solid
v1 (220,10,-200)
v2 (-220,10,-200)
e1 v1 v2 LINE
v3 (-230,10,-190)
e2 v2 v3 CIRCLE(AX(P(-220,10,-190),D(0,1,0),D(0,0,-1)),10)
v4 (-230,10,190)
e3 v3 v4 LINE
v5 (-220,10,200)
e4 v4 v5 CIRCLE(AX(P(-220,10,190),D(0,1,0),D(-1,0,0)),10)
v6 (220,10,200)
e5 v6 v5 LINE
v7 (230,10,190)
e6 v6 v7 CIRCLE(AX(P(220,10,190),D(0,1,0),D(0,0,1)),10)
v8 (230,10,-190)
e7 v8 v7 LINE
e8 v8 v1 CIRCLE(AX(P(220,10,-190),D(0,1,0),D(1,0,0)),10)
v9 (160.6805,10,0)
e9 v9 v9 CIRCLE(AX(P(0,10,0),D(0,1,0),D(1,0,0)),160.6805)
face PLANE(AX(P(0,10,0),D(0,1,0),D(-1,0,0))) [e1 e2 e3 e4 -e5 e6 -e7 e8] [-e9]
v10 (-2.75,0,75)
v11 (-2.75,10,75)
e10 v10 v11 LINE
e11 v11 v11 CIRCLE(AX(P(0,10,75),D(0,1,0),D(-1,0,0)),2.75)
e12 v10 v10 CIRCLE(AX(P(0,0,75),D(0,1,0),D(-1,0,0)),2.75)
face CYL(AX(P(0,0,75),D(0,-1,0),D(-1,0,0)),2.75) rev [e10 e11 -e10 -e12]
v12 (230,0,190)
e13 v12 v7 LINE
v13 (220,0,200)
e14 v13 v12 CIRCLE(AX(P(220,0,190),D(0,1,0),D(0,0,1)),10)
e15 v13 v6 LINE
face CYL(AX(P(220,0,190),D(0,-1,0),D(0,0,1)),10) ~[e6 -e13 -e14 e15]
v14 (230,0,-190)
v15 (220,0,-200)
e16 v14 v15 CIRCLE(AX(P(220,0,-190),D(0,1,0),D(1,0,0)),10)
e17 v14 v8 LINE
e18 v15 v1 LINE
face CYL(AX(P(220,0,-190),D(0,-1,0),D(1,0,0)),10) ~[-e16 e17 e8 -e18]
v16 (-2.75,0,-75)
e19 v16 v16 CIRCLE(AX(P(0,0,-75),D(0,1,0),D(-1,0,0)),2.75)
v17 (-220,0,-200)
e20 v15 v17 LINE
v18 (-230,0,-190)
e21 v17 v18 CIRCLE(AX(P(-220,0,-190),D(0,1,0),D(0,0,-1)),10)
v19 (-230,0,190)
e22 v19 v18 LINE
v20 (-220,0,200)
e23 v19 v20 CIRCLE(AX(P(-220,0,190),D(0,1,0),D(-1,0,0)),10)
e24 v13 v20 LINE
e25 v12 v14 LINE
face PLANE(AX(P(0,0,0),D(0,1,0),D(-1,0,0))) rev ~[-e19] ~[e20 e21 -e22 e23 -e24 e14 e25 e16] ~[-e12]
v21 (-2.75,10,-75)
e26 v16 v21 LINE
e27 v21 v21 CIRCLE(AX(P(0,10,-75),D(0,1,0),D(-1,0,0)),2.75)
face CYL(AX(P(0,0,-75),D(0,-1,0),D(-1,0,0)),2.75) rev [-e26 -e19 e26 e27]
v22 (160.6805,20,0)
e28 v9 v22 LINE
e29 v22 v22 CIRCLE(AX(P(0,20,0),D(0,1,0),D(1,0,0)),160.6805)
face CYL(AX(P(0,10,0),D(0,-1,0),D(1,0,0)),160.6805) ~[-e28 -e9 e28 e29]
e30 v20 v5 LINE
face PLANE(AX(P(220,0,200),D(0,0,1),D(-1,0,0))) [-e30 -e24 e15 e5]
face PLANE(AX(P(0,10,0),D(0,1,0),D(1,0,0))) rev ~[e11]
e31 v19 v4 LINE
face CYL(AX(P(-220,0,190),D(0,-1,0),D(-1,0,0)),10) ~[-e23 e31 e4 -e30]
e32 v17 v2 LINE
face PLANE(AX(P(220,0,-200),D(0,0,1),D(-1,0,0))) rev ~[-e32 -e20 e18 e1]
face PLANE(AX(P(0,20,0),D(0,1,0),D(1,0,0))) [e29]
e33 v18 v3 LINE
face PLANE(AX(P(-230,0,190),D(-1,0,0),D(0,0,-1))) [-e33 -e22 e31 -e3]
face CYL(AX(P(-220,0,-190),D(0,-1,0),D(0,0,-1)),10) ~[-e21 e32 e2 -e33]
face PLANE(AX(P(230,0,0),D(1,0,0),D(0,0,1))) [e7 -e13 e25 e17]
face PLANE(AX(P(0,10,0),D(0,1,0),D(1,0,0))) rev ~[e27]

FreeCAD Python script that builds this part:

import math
import FreeCAD as App
import Part
import Sketcher

V = App.Vector

doc = App.newDocument("Part")
body = doc.addObject("PartDesign::Body", "Body")

# Sketch on XZ plane
sketch1 = doc.addObject("Sketcher::SketchObject", "Sketch")
body.addObject(sketch1)
sketch1.AttachmentSupport = (doc.XZ_Plane, [""])
sketch1.MapMode = "FlatFace"
sketch1.addGeometry([
    Part.LineSegment(V(230, 190, 0), V(230, -190, 0)),  # 0
    Part.ArcOfCircle(Part.Circle(V(220, -190, 0), V(0, 0, 1), 10), math.radians(-90), math.radians(0)),  # 1
    Part.LineSegment(V(220, -200, 0), V(-220, -200, 0)),  # 2
    Part.ArcOfCircle(Part.Circle(V(-220, -190, 0), V(0, 0, 1), 10), math.radians(180), math.radians(270)),  # 3
    Part.LineSegment(V(-230, -190, 0), V(-230, 190, 0)),  # 4
    Part.ArcOfCircle(Part.Circle(V(-220, 190, 0), V(0, 0, 1), 10), math.radians(90), math.radians(180)),  # 5
    Part.LineSegment(V(-220, 200, 0), V(220, 200, 0)),  # 6
    Part.ArcOfCircle(Part.Circle(V(220, 190, 0), V(0, 0, 1), 10), math.radians(0), math.radians(90)),  # 7
    Part.Circle(V(0, -75, 0), V(0, 0, 1), 2.8),  # 8
    Part.Circle(V(0, 75, 0), V(0, 0, 1), 2.8),  # 9
], False)
sketch1.addConstraint([
    Sketcher.Constraint("Tangent", 0, 2, 1, 2),
    Sketcher.Constraint("Tangent", 1, 1, 2, 1),
    Sketcher.Constraint("Tangent", 2, 2, 3, 2),
    Sketcher.Constraint("Tangent", 3, 1, 4, 1),
    Sketcher.Constraint("Tangent", 4, 2, 5, 2),
    Sketcher.Constraint("Tangent", 5, 1, 6, 1),
    Sketcher.Constraint("Tangent", 6, 2, 7, 2),
    Sketcher.Constraint("Tangent", 7, 1, 0, 1),
    Sketcher.Constraint("Vertical", 0),
    Sketcher.Constraint("Horizontal", 2),
    Sketcher.Constraint("Vertical", 4),
    Sketcher.Constraint("Horizontal", 6),
    Sketcher.Constraint("Equal", 1, 3),
    Sketcher.Constraint("Equal", 3, 5),
    Sketcher.Constraint("Equal", 5, 7),
    Sketcher.Constraint("Equal", 8, 9),
    Sketcher.Constraint("Symmetric", 1, 3, 5, 3, -1, 1),
    Sketcher.Constraint("Symmetric", 8, 3, 9, 3, -1, 1),
    Sketcher.Constraint("PointOnObject", 8, 3, -2),
    Sketcher.Constraint("Radius", 1, 10.0),
    Sketcher.Constraint("Diameter", 8, 5.5),
    Sketcher.Constraint("DistanceY", 1, 1, -1, 1, 200.0),
    Sketcher.Constraint("DistanceX", 2, 2, 2, 1, 440.0),
    Sketcher.Constraint("DistanceY", 8, 3, -1, 1, 75.0),
])
pad1 = doc.addObject("PartDesign::Pad", "Pad")
body.addObject(pad1)
pad1.Profile = sketch1
pad1.Length = 10
pad1.Reversed = True

# Sketch on XZ plane
sketch2 = doc.addObject("Sketcher::SketchObject", "Sketch001")
body.addObject(sketch2)
sketch2.AttachmentSupport = (doc.XZ_Plane, [""])
sketch2.MapMode = "FlatFace"
sketch2.AttachmentOffset = App.Placement(V(0, 0, -10), App.Rotation())
sketch2.addGeometry(Part.Circle(V(0, 0, 0), V(0, 0, 1), 161), False)
sketch2.addConstraint([
    Sketcher.Constraint("Coincident", 0, 3, -1, 1),
    Sketcher.Constraint("Diameter", 0, 321.361),
])
pad2 = doc.addObject("PartDesign::Pad", "Pad001")
body.addObject(pad2)
pad2.Profile = sketch2
pad2.Length = 10
pad2.Reversed = True

doc.recompute()
